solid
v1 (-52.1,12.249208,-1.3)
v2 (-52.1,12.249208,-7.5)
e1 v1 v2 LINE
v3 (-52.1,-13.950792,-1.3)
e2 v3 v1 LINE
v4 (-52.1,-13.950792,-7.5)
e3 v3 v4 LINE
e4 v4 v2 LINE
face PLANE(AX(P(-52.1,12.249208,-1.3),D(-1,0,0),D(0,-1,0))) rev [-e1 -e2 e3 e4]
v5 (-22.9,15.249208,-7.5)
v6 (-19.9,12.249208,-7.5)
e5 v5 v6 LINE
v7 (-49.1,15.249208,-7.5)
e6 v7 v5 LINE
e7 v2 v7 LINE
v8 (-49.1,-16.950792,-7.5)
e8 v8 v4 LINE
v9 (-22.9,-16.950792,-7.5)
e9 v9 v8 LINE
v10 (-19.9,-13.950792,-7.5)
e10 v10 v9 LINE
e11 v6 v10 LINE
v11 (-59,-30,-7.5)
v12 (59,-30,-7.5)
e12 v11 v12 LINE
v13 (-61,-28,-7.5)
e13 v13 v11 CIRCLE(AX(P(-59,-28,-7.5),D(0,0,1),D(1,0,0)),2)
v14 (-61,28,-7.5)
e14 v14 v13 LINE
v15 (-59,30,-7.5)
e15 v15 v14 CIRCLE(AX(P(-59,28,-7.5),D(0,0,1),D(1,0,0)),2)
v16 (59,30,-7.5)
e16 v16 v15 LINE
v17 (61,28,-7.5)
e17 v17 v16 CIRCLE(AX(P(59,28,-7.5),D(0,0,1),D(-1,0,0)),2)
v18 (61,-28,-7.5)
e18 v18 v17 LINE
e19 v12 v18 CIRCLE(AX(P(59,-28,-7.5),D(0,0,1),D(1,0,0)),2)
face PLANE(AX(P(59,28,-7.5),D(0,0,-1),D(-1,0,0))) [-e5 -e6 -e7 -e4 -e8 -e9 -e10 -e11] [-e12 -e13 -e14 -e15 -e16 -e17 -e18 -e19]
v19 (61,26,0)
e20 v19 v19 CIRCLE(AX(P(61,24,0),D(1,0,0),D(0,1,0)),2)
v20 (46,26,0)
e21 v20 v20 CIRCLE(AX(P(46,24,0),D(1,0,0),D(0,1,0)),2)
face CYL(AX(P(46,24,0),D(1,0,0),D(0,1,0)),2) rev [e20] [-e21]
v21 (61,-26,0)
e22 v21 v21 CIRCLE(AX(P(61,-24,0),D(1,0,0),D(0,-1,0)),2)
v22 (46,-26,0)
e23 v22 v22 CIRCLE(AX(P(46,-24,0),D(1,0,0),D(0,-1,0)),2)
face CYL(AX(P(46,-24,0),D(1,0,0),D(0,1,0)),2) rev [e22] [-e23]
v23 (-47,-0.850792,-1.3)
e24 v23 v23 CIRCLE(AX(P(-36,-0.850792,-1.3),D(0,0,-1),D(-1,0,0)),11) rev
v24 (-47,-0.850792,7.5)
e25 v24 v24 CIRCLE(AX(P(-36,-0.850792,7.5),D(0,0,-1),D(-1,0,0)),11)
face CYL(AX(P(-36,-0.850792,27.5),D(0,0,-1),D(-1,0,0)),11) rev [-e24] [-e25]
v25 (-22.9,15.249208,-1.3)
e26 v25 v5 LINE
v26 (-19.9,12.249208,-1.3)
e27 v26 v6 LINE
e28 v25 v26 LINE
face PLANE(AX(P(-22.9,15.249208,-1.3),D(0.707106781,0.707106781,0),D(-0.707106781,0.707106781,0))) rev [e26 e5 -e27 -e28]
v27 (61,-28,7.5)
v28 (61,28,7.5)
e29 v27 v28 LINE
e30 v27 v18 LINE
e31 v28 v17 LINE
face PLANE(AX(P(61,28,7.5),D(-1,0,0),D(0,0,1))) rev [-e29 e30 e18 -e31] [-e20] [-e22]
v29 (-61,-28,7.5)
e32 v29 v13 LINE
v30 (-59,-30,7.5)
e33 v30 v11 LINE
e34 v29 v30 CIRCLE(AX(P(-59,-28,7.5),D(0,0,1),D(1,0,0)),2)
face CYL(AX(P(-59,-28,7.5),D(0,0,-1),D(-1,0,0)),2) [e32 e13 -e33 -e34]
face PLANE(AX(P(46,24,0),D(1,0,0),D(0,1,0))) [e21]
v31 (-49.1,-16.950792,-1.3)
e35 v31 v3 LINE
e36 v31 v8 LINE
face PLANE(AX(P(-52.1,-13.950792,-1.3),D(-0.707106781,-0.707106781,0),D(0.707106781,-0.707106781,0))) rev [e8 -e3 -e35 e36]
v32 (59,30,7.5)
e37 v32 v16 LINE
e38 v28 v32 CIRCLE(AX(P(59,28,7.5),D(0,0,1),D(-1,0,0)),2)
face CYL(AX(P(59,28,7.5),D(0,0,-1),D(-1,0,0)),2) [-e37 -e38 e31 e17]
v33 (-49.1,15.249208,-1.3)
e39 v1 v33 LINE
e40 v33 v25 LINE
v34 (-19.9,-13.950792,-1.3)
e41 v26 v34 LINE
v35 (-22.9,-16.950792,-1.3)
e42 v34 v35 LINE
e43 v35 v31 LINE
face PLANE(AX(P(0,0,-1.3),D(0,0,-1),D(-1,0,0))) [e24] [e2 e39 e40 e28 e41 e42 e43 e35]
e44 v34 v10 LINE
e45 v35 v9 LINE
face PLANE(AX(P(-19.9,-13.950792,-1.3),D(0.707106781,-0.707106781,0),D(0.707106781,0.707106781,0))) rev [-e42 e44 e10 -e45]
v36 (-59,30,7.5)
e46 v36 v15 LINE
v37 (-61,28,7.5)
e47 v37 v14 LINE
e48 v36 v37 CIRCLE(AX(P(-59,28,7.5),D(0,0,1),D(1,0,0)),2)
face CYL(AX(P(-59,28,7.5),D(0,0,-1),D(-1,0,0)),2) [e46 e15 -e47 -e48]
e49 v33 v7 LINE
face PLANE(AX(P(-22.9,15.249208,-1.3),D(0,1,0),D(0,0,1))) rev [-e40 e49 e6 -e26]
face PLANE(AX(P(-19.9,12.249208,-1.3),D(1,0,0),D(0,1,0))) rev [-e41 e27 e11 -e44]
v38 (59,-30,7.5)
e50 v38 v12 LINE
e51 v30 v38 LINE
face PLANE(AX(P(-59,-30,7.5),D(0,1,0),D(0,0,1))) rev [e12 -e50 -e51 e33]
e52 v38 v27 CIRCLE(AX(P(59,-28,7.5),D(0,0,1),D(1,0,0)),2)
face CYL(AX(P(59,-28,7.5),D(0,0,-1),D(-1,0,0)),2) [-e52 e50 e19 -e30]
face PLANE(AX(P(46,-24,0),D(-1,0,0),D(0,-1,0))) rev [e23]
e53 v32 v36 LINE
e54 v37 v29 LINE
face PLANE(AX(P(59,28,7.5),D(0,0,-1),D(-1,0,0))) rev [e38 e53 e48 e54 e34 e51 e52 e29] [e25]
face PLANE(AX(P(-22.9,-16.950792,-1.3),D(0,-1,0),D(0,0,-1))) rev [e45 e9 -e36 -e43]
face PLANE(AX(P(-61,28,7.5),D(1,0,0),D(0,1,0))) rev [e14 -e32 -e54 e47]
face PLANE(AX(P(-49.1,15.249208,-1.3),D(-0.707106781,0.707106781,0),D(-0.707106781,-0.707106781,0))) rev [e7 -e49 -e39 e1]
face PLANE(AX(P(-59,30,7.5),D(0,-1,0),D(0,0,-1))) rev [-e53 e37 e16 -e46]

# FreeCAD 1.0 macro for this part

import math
import FreeCAD as App
import Part
import Sketcher
from FreeCAD import Vector


def add_polygon(sketch, points):
    """Adds a closed chain of lines whose ends are joined by coincident constraints."""
    first, n = sketch.GeometryCount, len(points)
    for a, b in zip(points, points[1:] + points[:1]):
        sketch.addGeometry(Part.LineSegment(App.Vector(*a, 0), App.Vector(*b, 0)), False)
    for i in range(n):
        sketch.addConstraint(Sketcher.Constraint("Coincident", first + i, 2, first + (i + 1) % n, 1))

doc = App.newDocument("Part")
body = doc.addObject("PartDesign::Body", "Body")

sketch1 = body.newObject("Sketcher::SketchObject", "Sketch")
sketch1.AttachmentSupport = (doc.getObject("XY_Plane"), [""])
sketch1.MapMode = "FlatFace"
sketch1.addGeometry([
    Part.LineSegment(Vector(59, 30, 0), Vector(-59, 30, 0)),
    Part.ArcOfCircle(Part.Circle(Vector(-59, 28, 0), Vector(0, 0, 1), 2), math.radians(90), math.radians(180)),
    Part.LineSegment(Vector(-61, 28, 0), Vector(-61, -28, 0)),
    Part.ArcOfCircle(Part.Circle(Vector(-59, -28, 0), Vector(0, 0, 1), 2), math.radians(-180), math.radians(-90)),
    Part.LineSegment(Vector(-59, -30, 0), Vector(59, -30, 0)),
    Part.ArcOfCircle(Part.Circle(Vector(59, -28, 0), Vector(0, 0, 1), 2), math.radians(-90), math.radians(0)),
    Part.LineSegment(Vector(61, -28, 0), Vector(61, 28, 0)),
    Part.ArcOfCircle(Part.Circle(Vector(59, 28, 0), Vector(0, 0, 1), 2), math.radians(0), math.radians(90)),
], False)
sketch1.addConstraint([
    Sketcher.Constraint("Tangent", 0, 2, 1, 1),
    Sketcher.Constraint("Tangent", 1, 2, 2, 1),
    Sketcher.Constraint("Tangent", 2, 2, 3, 1),
    Sketcher.Constraint("Tangent", 3, 2, 4, 1),
    Sketcher.Constraint("Tangent", 4, 2, 5, 1),
    Sketcher.Constraint("Tangent", 5, 2, 6, 1),
    Sketcher.Constraint("Tangent", 6, 2, 7, 1),
    Sketcher.Constraint("Tangent", 7, 2, 0, 1),
    Sketcher.Constraint("Horizontal", 0),
    Sketcher.Constraint("Vertical", 2),
    Sketcher.Constraint("Horizontal", 4),
    Sketcher.Constraint("Vertical", 6),
    Sketcher.Constraint("Equal", 1, 3),
    Sketcher.Constraint("Equal", 3, 5),
    Sketcher.Constraint("Equal", 5, 7),
    Sketcher.Constraint("Symmetric", 1, 3, 5, 3, -1, 1),
    Sketcher.Constraint("Radius", 1, 2.0),
    Sketcher.Constraint("DistanceX", 0, 2, 0, 1, 118.0),
    Sketcher.Constraint("DistanceY", 2, 2, 2, 1, 56.0),
])
pad1 = body.newObject("PartDesign::Pad", "Pad")
pad1.Profile = sketch1
pad1.Length = 15
pad1.Midplane = True

sketch2 = body.newObject("Sketcher::SketchObject", "Sketch001")
sketch2.AttachmentSupport = (doc.getObject("YZ_Plane"), [""])
sketch2.MapMode = "FlatFace"
sketch2.AttachmentOffset = App.Placement(Vector(0, 0, 61), App.Rotation())
sketch2.addGeometry([
    Part.Circle(Vector(24, 0, 0), Vector(0, 0, 1), 2),
    Part.Circle(Vector(-24, 0, 0), Vector(0, 0, 1), 2),
], False)
sketch2.addConstraint([
    Sketcher.Constraint("Equal", 0, 1),
    Sketcher.Constraint("Symmetric", 0, 3, 1, 3, -1, 1),
    Sketcher.Constraint("PointOnObject", 0, 3, -1),
    Sketcher.Constraint("Diameter", 0, 4.0),
    Sketcher.Constraint("DistanceX", -1, 1, 0, 3, 24.0),
])
pocket1 = body.newObject("PartDesign::Pocket", "Pocket")
pocket1.Profile = sketch2
pocket1.Length = 15

sketch3 = body.newObject("Sketcher::SketchObject", "Sketch002")
sketch3.AttachmentSupport = (doc.getObject("XY_Plane"), [""])
sketch3.MapMode = "FlatFace"
sketch3.AttachmentOffset = App.Placement(Vector(0, 0, -7.5), App.Rotation())
sketch3.addGeometry(Part.Circle(Vector(-36, -1, 0), Vector(0, 0, 1), 11), False)
sketch3.addConstraint([
    Sketcher.Constraint("Diameter", 0, 22.0),
    Sketcher.Constraint("DistanceX", 0, 3, -1, 1, 36.0),
    Sketcher.Constraint("DistanceY", 0, 3, -1, 1, 0.850792),
])
pocket2 = body.newObject("PartDesign::Pocket", "Pocket001")
pocket2.Profile = sketch3
pocket2.Length = 35
pocket2.Reversed = True

sketch4 = body.newObject("Sketcher::SketchObject", "Sketch003")
sketch4.AttachmentSupport = (doc.getObject("XY_Plane"), [""])
sketch4.MapMode = "FlatFace"
sketch4.AttachmentOffset = App.Placement(Vector(0, 0, -7.5), App.Rotation())
add_polygon(sketch4, [(-52.1, 12.2), (-49.1, 15.2), (-22.9, 15.2), (-19.9, 12.2), (-19.9, -14), (-22.9, -17), (-49.1, -17), (-52.1, -14)])
sketch4.addConstraint([
    Sketcher.Constraint("Horizontal", 1),
    Sketcher.Constraint("Vertical", 3),
    Sketcher.Constraint("Horizontal", 5),
    Sketcher.Constraint("Vertical", 7),
    Sketcher.Constraint("Perpendicular", 0, 2),
    Sketcher.Constraint("Perpendicular", 2, 4),
    Sketcher.Constraint("Perpendicular", 4, 6),
    Sketcher.Constraint("Horizontal", 3, 2, 6, 2),
    Sketcher.Constraint("Horizontal", 2, 2, 7, 2),
    Sketcher.Constraint("Vertical", 1, 2, 4, 2),
    Sketcher.Constraint("Vertical", 0, 2, 5, 2),
    Sketcher.Constraint("Equal", 5, 3),
    Sketcher.Constraint("DistanceX", 1, 1, 1, 2, 26.2),
    Sketcher.Constraint("DistanceX", 1, 2, 2, 2, 3.0),
    Sketcher.Constraint("DistanceX", 0, 2, -1, 1, 49.1),
    Sketcher.Constraint("DistanceY", -1, 1, 0, 2, 15.249208),
])
pocket3 = body.newObject("PartDesign::Pocket", "Pocket002")
pocket3.Profile = sketch4
pocket3.Length = 6.2
pocket3.Reversed = True

doc.recompute()
